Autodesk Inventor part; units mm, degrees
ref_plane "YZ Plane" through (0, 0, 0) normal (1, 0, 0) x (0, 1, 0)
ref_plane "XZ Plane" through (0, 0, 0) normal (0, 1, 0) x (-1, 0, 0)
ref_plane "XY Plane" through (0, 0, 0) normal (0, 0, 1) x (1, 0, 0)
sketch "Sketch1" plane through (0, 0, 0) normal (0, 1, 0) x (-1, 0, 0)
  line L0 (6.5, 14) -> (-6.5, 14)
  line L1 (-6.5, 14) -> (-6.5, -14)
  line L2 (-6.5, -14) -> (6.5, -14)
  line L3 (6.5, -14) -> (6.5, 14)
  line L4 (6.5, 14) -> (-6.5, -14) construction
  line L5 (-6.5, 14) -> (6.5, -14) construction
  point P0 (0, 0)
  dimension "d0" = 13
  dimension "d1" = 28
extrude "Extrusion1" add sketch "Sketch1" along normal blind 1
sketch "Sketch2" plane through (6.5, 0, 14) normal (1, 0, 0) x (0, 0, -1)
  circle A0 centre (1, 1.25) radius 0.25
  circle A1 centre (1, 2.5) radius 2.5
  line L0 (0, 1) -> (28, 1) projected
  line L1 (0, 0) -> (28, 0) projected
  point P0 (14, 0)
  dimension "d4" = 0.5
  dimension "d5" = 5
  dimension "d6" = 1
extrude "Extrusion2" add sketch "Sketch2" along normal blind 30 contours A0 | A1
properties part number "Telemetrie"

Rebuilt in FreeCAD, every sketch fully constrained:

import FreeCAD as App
import Part
import Sketcher

doc = App.newDocument("Part")
body = doc.addObject("PartDesign::Body", "Body")

# Sketch on XZ plane
sketch1 = doc.addObject("Sketcher::SketchObject", "Sketch")
body.addObject(sketch1)
sketch1.AttachmentSupport = (doc.XZ_Plane, [""])
sketch1.MapMode = "FlatFace"
sketch1.addGeometry([
    Part.LineSegment(App.Vector(-6, -14, 0), App.Vector(-6, 14, 0)),
    Part.LineSegment(App.Vector(-6, 14, 0), App.Vector(6, 14, 0)),
    Part.LineSegment(App.Vector(6, 14, 0), App.Vector(6, -14, 0)),
    Part.LineSegment(App.Vector(6, -14, 0), App.Vector(-6, -14, 0)),
], False)
sketch1.addConstraint([
    Sketcher.Constraint("Coincident", 0, 2, 1, 1),
    Sketcher.Constraint("Coincident", 1, 2, 2, 1),
    Sketcher.Constraint("Coincident", 2, 2, 3, 1),
    Sketcher.Constraint("Coincident", 3, 2, 0, 1),
    Sketcher.Constraint("Vertical", 0),
    Sketcher.Constraint("Horizontal", 1),
    Sketcher.Constraint("Vertical", 2),
    Sketcher.Constraint("Horizontal", 3),
    Sketcher.Constraint("Symmetric", 0, 2, 2, 2, -1, 1),
    Sketcher.Constraint("DistanceX", 1, 1, 1, 2, 13.0),
    Sketcher.Constraint("DistanceY", 0, 1, 0, 2, 28.0),
])
pad1 = doc.addObject("PartDesign::Pad", "Pad")
body.addObject(pad1)
pad1.Profile = sketch1
pad1.Length = 1
pad1.Reversed = True

# Sketch on YZ plane
sketch2 = doc.addObject("Sketcher::SketchObject", "Sketch001")
body.addObject(sketch2)
sketch2.AttachmentSupport = (doc.YZ_Plane, [""])
sketch2.MapMode = "FlatFace"
sketch2.AttachmentOffset = App.Placement(App.Vector(0, 0, 6.5), App.Rotation())
sketch2.addGeometry(Part.Circle(App.Vector(2.5, 13, 0), App.Vector(0, 0, 1), 2.5), False)
sketch2.addConstraint([
    Sketcher.Constraint("Diameter", 0, 5.0),
    Sketcher.Constraint("DistanceY", -1, 1, 0, 3, 13.0),
    Sketcher.Constraint("DistanceX", -1, 1, 0, 3, 2.5),
])
pad2 = doc.addObject("PartDesign::Pad", "Pad001")
body.addObject(pad2)
pad2.Profile = sketch2
pad2.Length = 30

doc.recompute()
